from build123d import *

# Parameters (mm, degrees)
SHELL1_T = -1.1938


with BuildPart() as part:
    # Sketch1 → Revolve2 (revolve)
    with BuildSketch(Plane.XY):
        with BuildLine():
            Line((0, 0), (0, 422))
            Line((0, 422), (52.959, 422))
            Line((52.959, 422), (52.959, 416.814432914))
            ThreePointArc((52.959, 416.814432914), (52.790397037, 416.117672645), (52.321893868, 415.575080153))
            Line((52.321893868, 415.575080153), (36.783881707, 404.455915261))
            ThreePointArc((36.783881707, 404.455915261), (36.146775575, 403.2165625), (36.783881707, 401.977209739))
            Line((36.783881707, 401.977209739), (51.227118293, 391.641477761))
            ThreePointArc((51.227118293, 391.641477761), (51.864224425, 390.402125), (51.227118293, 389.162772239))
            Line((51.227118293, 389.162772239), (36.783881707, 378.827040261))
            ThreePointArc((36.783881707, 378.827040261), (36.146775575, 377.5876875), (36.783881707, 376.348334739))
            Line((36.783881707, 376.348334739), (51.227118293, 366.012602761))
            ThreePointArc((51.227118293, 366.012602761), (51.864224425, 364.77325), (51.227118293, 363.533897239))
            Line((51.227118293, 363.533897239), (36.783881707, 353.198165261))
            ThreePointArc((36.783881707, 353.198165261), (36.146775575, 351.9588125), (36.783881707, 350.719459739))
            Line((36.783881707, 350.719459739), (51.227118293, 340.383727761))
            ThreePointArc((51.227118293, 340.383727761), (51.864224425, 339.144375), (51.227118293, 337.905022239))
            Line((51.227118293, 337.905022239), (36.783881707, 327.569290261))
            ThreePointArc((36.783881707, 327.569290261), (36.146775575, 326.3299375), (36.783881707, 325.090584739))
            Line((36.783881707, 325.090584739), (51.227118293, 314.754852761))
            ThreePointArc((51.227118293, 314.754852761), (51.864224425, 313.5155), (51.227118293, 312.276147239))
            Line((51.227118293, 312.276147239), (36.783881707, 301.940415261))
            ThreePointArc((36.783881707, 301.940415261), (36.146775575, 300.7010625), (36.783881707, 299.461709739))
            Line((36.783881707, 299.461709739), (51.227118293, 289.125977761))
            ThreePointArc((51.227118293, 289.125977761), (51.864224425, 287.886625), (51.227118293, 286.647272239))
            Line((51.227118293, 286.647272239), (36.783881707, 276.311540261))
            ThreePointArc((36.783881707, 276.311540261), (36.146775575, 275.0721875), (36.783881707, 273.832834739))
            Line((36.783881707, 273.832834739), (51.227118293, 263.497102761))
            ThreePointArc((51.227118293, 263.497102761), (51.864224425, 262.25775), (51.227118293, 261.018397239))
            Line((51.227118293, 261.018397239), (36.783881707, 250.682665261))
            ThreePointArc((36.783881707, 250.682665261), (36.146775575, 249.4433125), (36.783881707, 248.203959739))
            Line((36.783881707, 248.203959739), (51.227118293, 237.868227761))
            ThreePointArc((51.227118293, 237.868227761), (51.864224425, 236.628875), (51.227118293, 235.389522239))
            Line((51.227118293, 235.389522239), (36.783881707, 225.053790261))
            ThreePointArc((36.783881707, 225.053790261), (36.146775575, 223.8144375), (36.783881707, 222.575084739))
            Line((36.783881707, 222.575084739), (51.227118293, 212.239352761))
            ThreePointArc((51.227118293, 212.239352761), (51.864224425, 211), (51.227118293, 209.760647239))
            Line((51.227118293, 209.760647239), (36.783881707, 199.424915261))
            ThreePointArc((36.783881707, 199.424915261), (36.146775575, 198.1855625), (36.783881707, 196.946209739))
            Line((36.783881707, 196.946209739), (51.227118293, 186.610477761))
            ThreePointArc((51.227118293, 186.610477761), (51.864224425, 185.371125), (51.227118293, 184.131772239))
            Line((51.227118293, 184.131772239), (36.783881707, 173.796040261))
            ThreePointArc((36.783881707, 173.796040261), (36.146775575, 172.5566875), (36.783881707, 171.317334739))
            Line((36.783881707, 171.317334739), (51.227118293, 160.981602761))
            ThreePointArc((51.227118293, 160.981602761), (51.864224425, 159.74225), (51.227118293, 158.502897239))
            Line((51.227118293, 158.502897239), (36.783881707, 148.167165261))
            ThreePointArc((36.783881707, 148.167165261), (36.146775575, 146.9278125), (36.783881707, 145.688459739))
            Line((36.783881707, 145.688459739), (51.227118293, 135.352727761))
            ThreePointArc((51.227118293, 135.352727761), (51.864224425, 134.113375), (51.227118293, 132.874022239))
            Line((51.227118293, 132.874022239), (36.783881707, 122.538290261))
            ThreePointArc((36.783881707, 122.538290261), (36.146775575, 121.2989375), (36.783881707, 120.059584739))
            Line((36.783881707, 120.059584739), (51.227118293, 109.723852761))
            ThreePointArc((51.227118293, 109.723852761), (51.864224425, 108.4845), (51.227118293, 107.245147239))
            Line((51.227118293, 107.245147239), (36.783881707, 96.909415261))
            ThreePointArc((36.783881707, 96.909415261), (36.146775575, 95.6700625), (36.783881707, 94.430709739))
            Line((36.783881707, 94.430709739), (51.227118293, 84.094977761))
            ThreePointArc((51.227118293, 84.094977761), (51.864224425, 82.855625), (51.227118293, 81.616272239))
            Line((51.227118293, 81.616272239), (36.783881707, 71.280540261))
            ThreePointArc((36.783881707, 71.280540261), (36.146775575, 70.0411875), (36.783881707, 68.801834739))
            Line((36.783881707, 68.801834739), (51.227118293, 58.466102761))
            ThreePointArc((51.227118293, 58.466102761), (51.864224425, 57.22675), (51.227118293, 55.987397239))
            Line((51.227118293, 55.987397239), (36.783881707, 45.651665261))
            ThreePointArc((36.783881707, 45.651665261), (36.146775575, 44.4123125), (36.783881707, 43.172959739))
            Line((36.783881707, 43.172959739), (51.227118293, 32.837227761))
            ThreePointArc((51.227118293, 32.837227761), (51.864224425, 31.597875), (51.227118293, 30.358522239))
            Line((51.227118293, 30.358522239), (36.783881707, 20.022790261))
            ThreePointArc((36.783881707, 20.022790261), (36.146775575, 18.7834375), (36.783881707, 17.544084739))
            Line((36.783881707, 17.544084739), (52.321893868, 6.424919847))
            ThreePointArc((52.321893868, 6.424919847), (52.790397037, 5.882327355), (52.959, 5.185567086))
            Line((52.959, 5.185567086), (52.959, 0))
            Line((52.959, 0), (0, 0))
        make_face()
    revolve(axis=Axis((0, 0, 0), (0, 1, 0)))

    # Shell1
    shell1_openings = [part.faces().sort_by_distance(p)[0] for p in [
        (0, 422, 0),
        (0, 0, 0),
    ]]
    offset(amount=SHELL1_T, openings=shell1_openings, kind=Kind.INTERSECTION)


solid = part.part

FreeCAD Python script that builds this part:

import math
import FreeCAD as App
import Part
import Sketcher
from FreeCAD import Vector
Q = App.Units.Quantity


def faces_at(feature, points):
    """Names of the faces that lie closest to the given points."""
    faces = feature.Shape.Faces
    near = lambda p: min(range(len(faces)), key=lambda i: faces[i].distToShape(Part.Vertex(*p))[0])
    return sorted({f"Face{near(p) + 1}" for p in points})

doc = App.newDocument("Part")
body = doc.addObject("PartDesign::Body", "Body")

# Sketch on XY plane
sketch1 = doc.addObject("Sketcher::SketchObject", "Sketch")
body.addObject(sketch1)
sketch1.AttachmentSupport = (doc.XY_Plane, [""])
sketch1.MapMode = "FlatFace"
sketch1.addGeometry(Part.LineSegment(Vector(0, 422, 0), Vector(0, 0, 0)), False)
sketch1.addGeometry(Part.LineSegment(Vector(0, 0, 0), Vector(52.959, 0, 0)), False)
sketch1.addGeometry(Part.LineSegment(Vector(52.959, 0, 0), Vector(52.959, 5.185567, 0)), False)
sketch1.addGeometry(Part.ArcOfCircle(Part.Circle(Vector(51.435, 5.185567, 0), Vector(0, 0, 1), 1.524), math.radians(0), math.radians(54.412092)), False)
sketch1.addGeometry(Part.LineSegment(Vector(52.321894, 6.42492, 0), Vector(36.783882, 17.544085, 0)), False)
sketch1.addGeometry(Part.ArcOfCircle(Part.Circle(Vector(37.670776, 18.783438, 0), Vector(0, 0, 1), 1.524), math.radians(125.587908), math.radians(234.412092)), False)
sketch1.addGeometry(Part.LineSegment(Vector(36.783882, 20.02279, 0), Vector(51.227118, 30.358522, 0)), False)
sketch1.addGeometry(Part.ArcOfCircle(Part.Circle(Vector(50.340224, 31.597875, 0), Vector(0, 0, 1), 1.524), math.radians(-54.412092), math.radians(54.412092)), False)
sketch1.addGeometry(Part.LineSegment(Vector(51.227118, 32.837228, 0), Vector(36.783882, 43.17296, 0)), False)
sketch1.addGeometry(Part.ArcOfCircle(Part.Circle(Vector(37.670776, 44.412312, 0), Vector(0, 0, 1), 1.524), math.radians(125.587908), math.radians(234.412092)), False)
sketch1.addGeometry(Part.LineSegment(Vector(36.783882, 45.651665, 0), Vector(51.227118, 55.987397, 0)), False)
sketch1.addGeometry(Part.ArcOfCircle(Part.Circle(Vector(50.340224, 57.22675, 0), Vector(0, 0, 1), 1.524), math.radians(-54.412092), math.radians(54.412092)), False)
sketch1.addGeometry(Part.LineSegment(Vector(51.227118, 58.466103, 0), Vector(36.783882, 68.801835, 0)), False)
sketch1.addGeometry(Part.ArcOfCircle(Part.Circle(Vector(37.670776, 70.041188, 0), Vector(0, 0, 1), 1.524), math.radians(125.587908), math.radians(234.412092)), False)
sketch1.addGeometry(Part.LineSegment(Vector(36.783882, 71.28054, 0), Vector(51.227118, 81.616272, 0)), False)
sketch1.addGeometry(Part.ArcOfCircle(Part.Circle(Vector(50.340224, 82.855625, 0), Vector(0, 0, 1), 1.524), math.radians(-54.412092), math.radians(54.412092)), False)
sketch1.addGeometry(Part.LineSegment(Vector(51.227118, 84.094978, 0), Vector(36.783882, 94.43071, 0)), False)
sketch1.addGeometry(Part.ArcOfCircle(Part.Circle(Vector(37.670776, 95.670063, 0), Vector(0, 0, 1), 1.524), math.radians(125.587908), math.radians(234.412092)), False)
sketch1.addGeometry(Part.LineSegment(Vector(36.783882, 96.909415, 0), Vector(51.227118, 107.245147, 0)), False)
sketch1.addGeometry(Part.ArcOfCircle(Part.Circle(Vector(50.340224, 108.4845, 0), Vector(0, 0, 1), 1.524), math.radians(-54.412092), math.radians(54.412092)), False)
sketch1.addGeometry(Part.LineSegment(Vector(51.227118, 109.723853, 0), Vector(36.783882, 120.059585, 0)), False)
sketch1.addGeometry(Part.ArcOfCircle(Part.Circle(Vector(37.670776, 121.298937, 0), Vector(0, 0, 1), 1.524), math.radians(125.587908), math.radians(234.412092)), False)
sketch1.addGeometry(Part.LineSegment(Vector(36.783882, 122.53829, 0), Vector(51.227118, 132.874022, 0)), False)
sketch1.addGeometry(Part.ArcOfCircle(Part.Circle(Vector(50.340224, 134.113375, 0), Vector(0, 0, 1), 1.524), math.radians(-54.412092), math.radians(54.412092)), False)
sketch1.addGeometry(Part.LineSegment(Vector(51.227118, 135.352728, 0), Vector(36.783882, 145.68846, 0)), False)
sketch1.addGeometry(Part.ArcOfCircle(Part.Circle(Vector(37.670776, 146.927812, 0), Vector(0, 0, 1), 1.524), math.radians(125.587908), math.radians(234.412092)), False)
sketch1.addGeometry(Part.LineSegment(Vector(36.783882, 148.167165, 0), Vector(51.227118, 158.502897, 0)), False)
sketch1.addGeometry(Part.ArcOfCircle(Part.Circle(Vector(50.340224, 159.74225, 0), Vector(0, 0, 1), 1.524), math.radians(-54.412092), math.radians(54.412092)), False)
sketch1.addGeometry(Part.LineSegment(Vector(51.227118, 160.981603, 0), Vector(36.783882, 171.317335, 0)), False)
sketch1.addGeometry(Part.ArcOfCircle(Part.Circle(Vector(37.670776, 172.556688, 0), Vector(0, 0, 1), 1.524), math.radians(125.587908), math.radians(234.412092)), False)
sketch1.addGeometry(Part.LineSegment(Vector(36.783882, 173.79604, 0), Vector(51.227118, 184.131772, 0)), False)
sketch1.addGeometry(Part.ArcOfCircle(Part.Circle(Vector(50.340224, 185.371125, 0), Vector(0, 0, 1), 1.524), math.radians(-54.412092), math.radians(54.412092)), False)
sketch1.addGeometry(Part.LineSegment(Vector(51.227118, 186.610478, 0), Vector(36.783882, 196.94621, 0)), False)
sketch1.addGeometry(Part.ArcOfCircle(Part.Circle(Vector(37.670776, 198.185563, 0), Vector(0, 0, 1), 1.524), math.radians(125.587908), math.radians(234.412092)), False)
sketch1.addGeometry(Part.LineSegment(Vector(36.783882, 199.424915, 0), Vector(51.227118, 209.760647, 0)), False)
sketch1.addGeometry(Part.ArcOfCircle(Part.Circle(Vector(50.340224, 211, 0), Vector(0, 0, 1), 1.524), math.radians(-54.412092), math.radians(54.412092)), False)
sketch1.addGeometry(Part.LineSegment(Vector(51.227118, 212.239353, 0), Vector(36.783882, 222.575085, 0)), False)
sketch1.addGeometry(Part.ArcOfCircle(Part.Circle(Vector(37.670776, 223.814437, 0), Vector(0, 0, 1), 1.524), math.radians(125.587908), math.radians(234.412092)), False)
sketch1.addGeometry(Part.LineSegment(Vector(36.783882, 225.05379, 0), Vector(51.227118, 235.389522, 0)), False)
sketch1.addGeometry(Part.ArcOfCircle(Part.Circle(Vector(50.340224, 236.628875, 0), Vector(0, 0, 1), 1.524), math.radians(-54.412092), math.radians(54.412092)), False)
sketch1.addGeometry(Part.LineSegment(Vector(51.227118, 237.868228, 0), Vector(36.783882, 248.20396, 0)), False)
sketch1.addGeometry(Part.ArcOfCircle(Part.Circle(Vector(37.670776, 249.443312, 0), Vector(0, 0, 1), 1.524), math.radians(125.587908), math.radians(234.412092)), False)
sketch1.addGeometry(Part.LineSegment(Vector(36.783882, 250.682665, 0), Vector(51.227118, 261.018397, 0)), False)
sketch1.addGeometry(Part.ArcOfCircle(Part.Circle(Vector(50.340224, 262.25775, 0), Vector(0, 0, 1), 1.524), math.radians(-54.412092), math.radians(54.412092)), False)
sketch1.addGeometry(Part.LineSegment(Vector(51.227118, 263.497103, 0), Vector(36.783882, 273.832835, 0)), False)
sketch1.addGeometry(Part.ArcOfCircle(Part.Circle(Vector(37.670776, 275.072187, 0), Vector(0, 0, 1), 1.524), math.radians(125.587908), math.radians(234.412092)), False)
sketch1.addGeometry(Part.LineSegment(Vector(36.783882, 276.31154, 0), Vector(51.227118, 286.647272, 0)), False)
sketch1.addGeometry(Part.ArcOfCircle(Part.Circle(Vector(50.340224, 287.886625, 0), Vector(0, 0, 1), 1.524), math.radians(-54.412092), math.radians(54.412092)), False)
sketch1.addGeometry(Part.LineSegment(Vector(51.227118, 289.125978, 0), Vector(36.783882, 299.46171, 0)), False)
sketch1.addGeometry(Part.ArcOfCircle(Part.Circle(Vector(37.670776, 300.701062, 0), Vector(0, 0, 1), 1.524), math.radians(125.587908), math.radians(234.412092)), False)
sketch1.addGeometry(Part.LineSegment(Vector(36.783882, 301.940415, 0), Vector(51.227118, 312.276147, 0)), False)
sketch1.addGeometry(Part.ArcOfCircle(Part.Circle(Vector(50.340224, 313.5155, 0), Vector(0, 0, 1), 1.524), math.radians(-54.412092), math.radians(54.412092)), False)
sketch1.addGeometry(Part.LineSegment(Vector(51.227118, 314.754853, 0), Vector(36.783882, 325.090585, 0)), False)
sketch1.addGeometry(Part.ArcOfCircle(Part.Circle(Vector(37.670776, 326.329938, 0), Vector(0, 0, 1), 1.524), math.radians(125.587908), math.radians(234.412092)), False)
sketch1.addGeometry(Part.LineSegment(Vector(36.783882, 327.56929, 0), Vector(51.227118, 337.905022, 0)), False)
sketch1.addGeometry(Part.ArcOfCircle(Part.Circle(Vector(50.340224, 339.144375, 0), Vector(0, 0, 1), 1.524), math.radians(-54.412092), math.radians(54.412092)), False)
sketch1.addGeometry(Part.LineSegment(Vector(51.227118, 340.383728, 0), Vector(36.783882, 350.71946, 0)), False)
sketch1.addGeometry(Part.ArcOfCircle(Part.Circle(Vector(37.670776, 351.958813, 0), Vector(0, 0, 1), 1.524), math.radians(125.587908), math.radians(234.412092)), False)
sketch1.addGeometry(Part.LineSegment(Vector(36.783882, 353.198165, 0), Vector(51.227118, 363.533897, 0)), False)
sketch1.addGeometry(Part.ArcOfCircle(Part.Circle(Vector(50.340224, 364.77325, 0), Vector(0, 0, 1), 1.524), math.radians(-54.412092), math.radians(54.412092)), False)
sketch1.addGeometry(Part.LineSegment(Vector(51.227118, 366.012603, 0), Vector(36.783882, 376.348335, 0)), False)
sketch1.addGeometry(Part.ArcOfCircle(Part.Circle(Vector(37.670776, 377.587688, 0), Vector(0, 0, 1), 1.524), math.radians(125.587908), math.radians(234.412092)), False)
sketch1.addGeometry(Part.LineSegment(Vector(36.783882, 378.82704, 0), Vector(51.227118, 389.162772, 0)), False)
sketch1.addGeometry(Part.ArcOfCircle(Part.Circle(Vector(50.340224, 390.402125, 0), Vector(0, 0, 1), 1.524), math.radians(-54.412092), math.radians(54.412092)), False)
sketch1.addGeometry(Part.LineSegment(Vector(51.227118, 391.641478, 0), Vector(36.783882, 401.97721, 0)), False)
sketch1.addGeometry(Part.ArcOfCircle(Part.Circle(Vector(37.670776, 403.216563, 0), Vector(0, 0, 1), 1.524), math.radians(125.587908), math.radians(234.412092)), False)
sketch1.addGeometry(Part.LineSegment(Vector(36.783882, 404.455915, 0), Vector(52.321894, 415.57508, 0)), False)
sketch1.addGeometry(Part.ArcOfCircle(Part.Circle(Vector(51.435, 416.814433, 0), Vector(0, 0, 1), 1.524), math.radians(-54.412092), math.radians(0)), False)
sketch1.addGeometry(Part.LineSegment(Vector(52.959, 416.814433, 0), Vector(52.959, 422, 0)), False)
sketch1.addGeometry(Part.LineSegment(Vector(52.959, 422, 0), Vector(0, 422, 0)), False)
sketch1.addConstraint(Sketcher.Constraint("Coincident", 0, 2, 1, 1))
sketch1.addConstraint(Sketcher.Constraint("Coincident", 1, 2, 2, 1))
sketch1.addConstraint(Sketcher.Constraint("Tangent", 2, 2, 3, 1))
sketch1.addConstraint(Sketcher.Constraint("Tangent", 3, 2, 4, 1))
sketch1.addConstraint(Sketcher.Constraint("Tangent", 4, 2, 5, 2))
sketch1.addConstraint(Sketcher.Constraint("Tangent", 5, 1, 6, 1))
sketch1.addConstraint(Sketcher.Constraint("Tangent", 6, 2, 7, 1))
sketch1.addConstraint(Sketcher.Constraint("Tangent", 7, 2, 8, 1))
sketch1.addConstraint(Sketcher.Constraint("Tangent", 8, 2, 9, 2))
sketch1.addConstraint(Sketcher.Constraint("Tangent", 9, 1, 10, 1))
sketch1.addConstraint(Sketcher.Constraint("Tangent", 10, 2, 11, 1))
sketch1.addConstraint(Sketcher.Constraint("Tangent", 11, 2, 12, 1))
sketch1.addConstraint(Sketcher.Constraint("Tangent", 12, 2, 13, 2))
sketch1.addConstraint(Sketcher.Constraint("Tangent", 13, 1, 14, 1))
sketch1.addConstraint(Sketcher.Constraint("Tangent", 14, 2, 15, 1))
sketch1.addConstraint(Sketcher.Constraint("Tangent", 15, 2, 16, 1))
sketch1.addConstraint(Sketcher.Constraint("Tangent", 16, 2, 17, 2))
sketch1.addConstraint(Sketcher.Constraint("Tangent", 17, 1, 18, 1))
sketch1.addConstraint(Sketcher.Constraint("Tangent", 18, 2, 19, 1))
sketch1.addConstraint(Sketcher.Constraint("Tangent", 19, 2, 20, 1))
sketch1.addConstraint(Sketcher.Constraint("Tangent", 20, 2, 21, 2))
sketch1.addConstraint(Sketcher.Constraint("Tangent", 21, 1, 22, 1))
sketch1.addConstraint(Sketcher.Constraint("Tangent", 22, 2, 23, 1))
sketch1.addConstraint(Sketcher.Constraint("Tangent", 23, 2, 24, 1))
sketch1.addConstraint(Sketcher.Constraint("Tangent", 24, 2, 25, 2))
sketch1.addConstraint(Sketcher.Constraint("Tangent", 25, 1, 26, 1))
sketch1.addConstraint(Sketcher.Constraint("Tangent", 26, 2, 27, 1))
sketch1.addConstraint(Sketcher.Constraint("Tangent", 27, 2, 28, 1))
sketch1.addConstraint(Sketcher.Constraint("Tangent", 28, 2, 29, 2))
sketch1.addConstraint(Sketcher.Constraint("Tangent", 29, 1, 30, 1))
sketch1.addConstraint(Sketcher.Constraint("Tangent", 30, 2, 31, 1))
sketch1.addConstraint(Sketcher.Constraint("Tangent", 31, 2, 32, 1))
sketch1.addConstraint(Sketcher.Constraint("Tangent", 32, 2, 33, 2))
sketch1.addConstraint(Sketcher.Constraint("Tangent", 33, 1, 34, 1))
sketch1.addConstraint(Sketcher.Constraint("Tangent", 34, 2, 35, 1))
sketch1.addConstraint(Sketcher.Constraint("Tangent", 35, 2, 36, 1))
sketch1.addConstraint(Sketcher.Constraint("Tangent", 36, 2, 37, 2))
sketch1.addConstraint(Sketcher.Constraint("Tangent", 37, 1, 38, 1))
sketch1.addConstraint(Sketcher.Constraint("Tangent", 38, 2, 39, 1))
sketch1.addConstraint(Sketcher.Constraint("Tangent", 39, 2, 40, 1))
sketch1.addConstraint(Sketcher.Constraint("Tangent", 40, 2, 41, 2))
sketch1.addConstraint(Sketcher.Constraint("Tangent", 41, 1, 42, 1))
sketch1.addConstraint(Sketcher.Constraint("Tangent", 42, 2, 43, 1))
sketch1.addConstraint(Sketcher.Constraint("Tangent", 43, 2, 44, 1))
sketch1.addConstraint(Sketcher.Constraint("Tangent", 44, 2, 45, 2))
sketch1.addConstraint(Sketcher.Constraint("Tangent", 45, 1, 46, 1))
sketch1.addConstraint(Sketcher.Constraint("Tangent", 46, 2, 47, 1))
sketch1.addConstraint(Sketcher.Constraint("Tangent", 47, 2, 48, 1))
sketch1.addConstraint(Sketcher.Constraint("Tangent", 48, 2, 49, 2))
sketch1.addConstraint(Sketcher.Constraint("Tangent", 49, 1, 50, 1))
sketch1.addConstraint(Sketcher.Constraint("Tangent", 50, 2, 51, 1))
sketch1.addConstraint(Sketcher.Constraint("Tangent", 51, 2, 52, 1))
sketch1.addConstraint(Sketcher.Constraint("Tangent", 52, 2, 53, 2))
sketch1.addConstraint(Sketcher.Constraint("Tangent", 53, 1, 54, 1))
sketch1.addConstraint(Sketcher.Constraint("Tangent", 54, 2, 55, 1))
sketch1.addConstraint(Sketcher.Constraint("Tangent", 55, 2, 56, 1))
sketch1.addConstraint(Sketcher.Constraint("Tangent", 56, 2, 57, 2))
sketch1.addConstraint(Sketcher.Constraint("Tangent", 57, 1, 58, 1))
sketch1.addConstraint(Sketcher.Constraint("Tangent", 58, 2, 59, 1))
sketch1.addConstraint(Sketcher.Constraint("Tangent", 59, 2, 60, 1))
sketch1.addConstraint(Sketcher.Constraint("Tangent", 60, 2, 61, 2))
sketch1.addConstraint(Sketcher.Constraint("Tangent", 61, 1, 62, 1))
sketch1.addConstraint(Sketcher.Constraint("Tangent", 62, 2, 63, 1))
sketch1.addConstraint(Sketcher.Constraint("Tangent", 63, 2, 64, 1))
sketch1.addConstraint(Sketcher.Constraint("Tangent", 64, 2, 65, 2))
sketch1.addConstraint(Sketcher.Constraint("Tangent", 65, 1, 66, 1))
sketch1.addConstraint(Sketcher.Constraint("Tangent", 66, 2, 67, 1))
sketch1.addConstraint(Sketcher.Constraint("Tangent", 67, 2, 68, 1))
sketch1.addConstraint(Sketcher.Constraint("Coincident", 68, 2, 69, 1))
sketch1.addConstraint(Sketcher.Constraint("Coincident", 69, 2, 0, 1))
sketch1.addConstraint(Sketcher.Constraint("Vertical", 0))
sketch1.addConstraint(Sketcher.Constraint("Horizontal", 1))
sketch1.addConstraint(Sketcher.Constraint("Vertical", 2))
sketch1.addConstraint(Sketcher.Constraint("Vertical", 68))
sketch1.addConstraint(Sketcher.Constraint("Horizontal", 69))
sketch1.addConstraint(Sketcher.Constraint("Coincident", 0, 2, -1, 1))
sketch1.addConstraint(Sketcher.Constraint("Equal", 3, 5))
sketch1.addConstraint(Sketcher.Constraint("Equal", 5, 7))
sketch1.addConstraint(Sketcher.Constraint("Equal", 7, 9))
sketch1.addConstraint(Sketcher.Constraint("Equal", 9, 11))
sketch1.addConstraint(Sketcher.Constraint("Equal", 11, 13))
sketch1.addConstraint(Sketcher.Constraint("Equal", 13, 15))
sketch1.addConstraint(Sketcher.Constraint("Equal", 15, 17))
sketch1.addConstraint(Sketcher.Constraint("Equal", 17, 19))
sketch1.addConstraint(Sketcher.Constraint("Equal", 19, 21))
sketch1.addConstraint(Sketcher.Constraint("Equal", 21, 23))
sketch1.addConstraint(Sketcher.Constraint("Equal", 23, 25))
sketch1.addConstraint(Sketcher.Constraint("Equal", 25, 27))
sketch1.addConstraint(Sketcher.Constraint("Equal", 27, 29))
sketch1.addConstraint(Sketcher.Constraint("Equal", 29, 31))
sketch1.addConstraint(Sketcher.Constraint("Equal", 31, 33))
sketch1.addConstraint(Sketcher.Constraint("Equal", 33, 35))
sketch1.addConstraint(Sketcher.Constraint("Equal", 35, 37))
sketch1.addConstraint(Sketcher.Constraint("Equal", 37, 39))
sketch1.addConstraint(Sketcher.Constraint("Equal", 39, 41))
sketch1.addConstraint(Sketcher.Constraint("Equal", 41, 43))
sketch1.addConstraint(Sketcher.Constraint("Equal", 43, 45))
sketch1.addConstraint(Sketcher.Constraint("Equal", 45, 47))
sketch1.addConstraint(Sketcher.Constraint("Equal", 47, 49))
sketch1.addConstraint(Sketcher.Constraint("Equal", 49, 51))
sketch1.addConstraint(Sketcher.Constraint("Equal", 51, 53))
sketch1.addConstraint(Sketcher.Constraint("Equal", 53, 55))
sketch1.addConstraint(Sketcher.Constraint("Equal", 55, 57))
sketch1.addConstraint(Sketcher.Constraint("Equal", 57, 59))
sketch1.addConstraint(Sketcher.Constraint("Equal", 59, 61))
sketch1.addConstraint(Sketcher.Constraint("Equal", 61, 63))
sketch1.addConstraint(Sketcher.Constraint("Equal", 63, 65))
sketch1.addConstraint(Sketcher.Constraint("Equal", 65, 67))
sketch1.addConstraint(Sketcher.Constraint("Parallel", 4, 8))
sketch1.addConstraint(Sketcher.Constraint("Parallel", 6, 10))
sketch1.addConstraint(Sketcher.Constraint("Parallel", 8, 12))
sketch1.addConstraint(Sketcher.Constraint("Parallel", 10, 14))
sketch1.addConstraint(Sketcher.Constraint("Parallel", 12, 16))
sketch1.addConstraint(Sketcher.Constraint("Parallel", 14, 18))
sketch1.addConstraint(Sketcher.Constraint("Parallel", 16, 20))
sketch1.addConstraint(Sketcher.Constraint("Parallel", 18, 22))
sketch1.addConstraint(Sketcher.Constraint("Parallel", 20, 24))
sketch1.addConstraint(Sketcher.Constraint("Parallel", 22, 26))
sketch1.addConstraint(Sketcher.Constraint("Parallel", 24, 28))
sketch1.addConstraint(Sketcher.Constraint("Parallel", 26, 30))
sketch1.addConstraint(Sketcher.Constraint("Parallel", 28, 32))
sketch1.addConstraint(Sketcher.Constraint("Parallel", 30, 34))
sketch1.addConstraint(Sketcher.Constraint("Parallel", 32, 36))
sketch1.addConstraint(Sketcher.Constraint("Parallel", 34, 38))
sketch1.addConstraint(Sketcher.Constraint("Parallel", 36, 40))
sketch1.addConstraint(Sketcher.Constraint("Parallel", 38, 42))
sketch1.addConstraint(Sketcher.Constraint("Parallel", 40, 44))
sketch1.addConstraint(Sketcher.Constraint("Parallel", 42, 46))
sketch1.addConstraint(Sketcher.Constraint("Parallel", 44, 48))
sketch1.addConstraint(Sketcher.Constraint("Parallel", 46, 50))
sketch1.addConstraint(Sketcher.Constraint("Parallel", 48, 52))
sketch1.addConstraint(Sketcher.Constraint("Parallel", 50, 54))
sketch1.addConstraint(Sketcher.Constraint("Parallel", 52, 56))
sketch1.addConstraint(Sketcher.Constraint("Parallel", 54, 58))
sketch1.addConstraint(Sketcher.Constraint("Parallel", 56, 60))
sketch1.addConstraint(Sketcher.Constraint("Parallel", 58, 62))
sketch1.addConstraint(Sketcher.Constraint("Parallel", 60, 64))
sketch1.addConstraint(Sketcher.Constraint("Parallel", 62, 66))
sketch1.addConstraint(Sketcher.Constraint("Vertical", 5, 3, 9, 3))
sketch1.addConstraint(Sketcher.Constraint("Vertical", 7, 3, 11, 3))
sketch1.addConstraint(Sketcher.Constraint("Vertical", 9, 3, 13, 3))
sketch1.addConstraint(Sketcher.Constraint("Vertical", 11, 3, 15, 3))
sketch1.addConstraint(Sketcher.Constraint("Vertical", 13, 3, 17, 3))
sketch1.addConstraint(Sketcher.Constraint("Vertical", 15, 3, 19, 3))
sketch1.addConstraint(Sketcher.Constraint("Vertical", 17, 3, 21, 3))
sketch1.addConstraint(Sketcher.Constraint("Vertical", 19, 3, 23, 3))
sketch1.addConstraint(Sketcher.Constraint("Vertical", 21, 3, 25, 3))
sketch1.addConstraint(Sketcher.Constraint("Vertical", 23, 3, 27, 3))
sketch1.addConstraint(Sketcher.Constraint("Vertical", 25, 3, 29, 3))
sketch1.addConstraint(Sketcher.Constraint("Vertical", 27, 3, 31, 3))
sketch1.addConstraint(Sketcher.Constraint("Vertical", 29, 3, 33, 3))
sketch1.addConstraint(Sketcher.Constraint("Vertical", 31, 3, 35, 3))
sketch1.addConstraint(Sketcher.Constraint("Vertical", 33, 3, 37, 3))
sketch1.addConstraint(Sketcher.Constraint("Vertical", 35, 3, 39, 3))
sketch1.addConstraint(Sketcher.Constraint("Vertical", 37, 3, 41, 3))
sketch1.addConstraint(Sketcher.Constraint("Vertical", 39, 3, 43, 3))
sketch1.addConstraint(Sketcher.Constraint("Vertical", 41, 3, 45, 3))
sketch1.addConstraint(Sketcher.Constraint("Vertical", 43, 3, 47, 3))
sketch1.addConstraint(Sketcher.Constraint("Vertical", 45, 3, 49, 3))
sketch1.addConstraint(Sketcher.Constraint("Vertical", 47, 3, 51, 3))
sketch1.addConstraint(Sketcher.Constraint("Vertical", 49, 3, 53, 3))
sketch1.addConstraint(Sketcher.Constraint("Vertical", 51, 3, 55, 3))
sketch1.addConstraint(Sketcher.Constraint("Vertical", 53, 3, 57, 3))
sketch1.addConstraint(Sketcher.Constraint("Vertical", 55, 3, 59, 3))
sketch1.addConstraint(Sketcher.Constraint("Vertical", 57, 3, 61, 3))
sketch1.addConstraint(Sketcher.Constraint("Vertical", 59, 3, 63, 3))
sketch1.addConstraint(Sketcher.Constraint("Vertical", 61, 3, 65, 3))
sketch1.addConstraint(Sketcher.Constraint("Vertical", 3, 3, 67, 3))
sketch1.addConstraint(Sketcher.Constraint("Vertical", 4, 2, 5, 1))
sketch1.addConstraint(Sketcher.Constraint("Equal", 2, 68))
sketch1.addConstraint(Sketcher.Constraint("Radius", 3, Q("0.06 in")))
sketch1.addConstraint(Sketcher.Constraint("DistanceX", 1, 1, 1, 2, Q("2.085 in")))
sketch1.addConstraint(Sketcher.Constraint("DistanceY", 0, 2, 0, 1, Q("422 mm")))
sketch1.addConstraint(Sketcher.Constraint("DistanceY", -1, 1, 19, 3, Q("108.4845 mm")))
sketch1.addConstraint(Sketcher.Constraint("Distance", 4, Q("19.106691 mm")))
sketch1.addConstraint(Sketcher.Constraint("DistanceY", 2, 1, 2, 2, Q("5.185567 mm")))
revolution = doc.addObject("PartDesign::Revolution", "Revolution")
body.addObject(revolution)
revolution.Profile = sketch1
revolution.ReferenceAxis = (sketch1, ["V_Axis"])
revolution.Angle = 360
doc.recompute()

thickness = doc.addObject("PartDesign::Thickness", "Thickness")
body.addObject(thickness)
thickness.Base = (revolution, faces_at(revolution, [(0, 422, 0), (0, 0, 0)]))
thickness.Value = Q("0.047 in")
thickness.Reversed = True
thickness.Join = "Intersection"

doc.recompute()
